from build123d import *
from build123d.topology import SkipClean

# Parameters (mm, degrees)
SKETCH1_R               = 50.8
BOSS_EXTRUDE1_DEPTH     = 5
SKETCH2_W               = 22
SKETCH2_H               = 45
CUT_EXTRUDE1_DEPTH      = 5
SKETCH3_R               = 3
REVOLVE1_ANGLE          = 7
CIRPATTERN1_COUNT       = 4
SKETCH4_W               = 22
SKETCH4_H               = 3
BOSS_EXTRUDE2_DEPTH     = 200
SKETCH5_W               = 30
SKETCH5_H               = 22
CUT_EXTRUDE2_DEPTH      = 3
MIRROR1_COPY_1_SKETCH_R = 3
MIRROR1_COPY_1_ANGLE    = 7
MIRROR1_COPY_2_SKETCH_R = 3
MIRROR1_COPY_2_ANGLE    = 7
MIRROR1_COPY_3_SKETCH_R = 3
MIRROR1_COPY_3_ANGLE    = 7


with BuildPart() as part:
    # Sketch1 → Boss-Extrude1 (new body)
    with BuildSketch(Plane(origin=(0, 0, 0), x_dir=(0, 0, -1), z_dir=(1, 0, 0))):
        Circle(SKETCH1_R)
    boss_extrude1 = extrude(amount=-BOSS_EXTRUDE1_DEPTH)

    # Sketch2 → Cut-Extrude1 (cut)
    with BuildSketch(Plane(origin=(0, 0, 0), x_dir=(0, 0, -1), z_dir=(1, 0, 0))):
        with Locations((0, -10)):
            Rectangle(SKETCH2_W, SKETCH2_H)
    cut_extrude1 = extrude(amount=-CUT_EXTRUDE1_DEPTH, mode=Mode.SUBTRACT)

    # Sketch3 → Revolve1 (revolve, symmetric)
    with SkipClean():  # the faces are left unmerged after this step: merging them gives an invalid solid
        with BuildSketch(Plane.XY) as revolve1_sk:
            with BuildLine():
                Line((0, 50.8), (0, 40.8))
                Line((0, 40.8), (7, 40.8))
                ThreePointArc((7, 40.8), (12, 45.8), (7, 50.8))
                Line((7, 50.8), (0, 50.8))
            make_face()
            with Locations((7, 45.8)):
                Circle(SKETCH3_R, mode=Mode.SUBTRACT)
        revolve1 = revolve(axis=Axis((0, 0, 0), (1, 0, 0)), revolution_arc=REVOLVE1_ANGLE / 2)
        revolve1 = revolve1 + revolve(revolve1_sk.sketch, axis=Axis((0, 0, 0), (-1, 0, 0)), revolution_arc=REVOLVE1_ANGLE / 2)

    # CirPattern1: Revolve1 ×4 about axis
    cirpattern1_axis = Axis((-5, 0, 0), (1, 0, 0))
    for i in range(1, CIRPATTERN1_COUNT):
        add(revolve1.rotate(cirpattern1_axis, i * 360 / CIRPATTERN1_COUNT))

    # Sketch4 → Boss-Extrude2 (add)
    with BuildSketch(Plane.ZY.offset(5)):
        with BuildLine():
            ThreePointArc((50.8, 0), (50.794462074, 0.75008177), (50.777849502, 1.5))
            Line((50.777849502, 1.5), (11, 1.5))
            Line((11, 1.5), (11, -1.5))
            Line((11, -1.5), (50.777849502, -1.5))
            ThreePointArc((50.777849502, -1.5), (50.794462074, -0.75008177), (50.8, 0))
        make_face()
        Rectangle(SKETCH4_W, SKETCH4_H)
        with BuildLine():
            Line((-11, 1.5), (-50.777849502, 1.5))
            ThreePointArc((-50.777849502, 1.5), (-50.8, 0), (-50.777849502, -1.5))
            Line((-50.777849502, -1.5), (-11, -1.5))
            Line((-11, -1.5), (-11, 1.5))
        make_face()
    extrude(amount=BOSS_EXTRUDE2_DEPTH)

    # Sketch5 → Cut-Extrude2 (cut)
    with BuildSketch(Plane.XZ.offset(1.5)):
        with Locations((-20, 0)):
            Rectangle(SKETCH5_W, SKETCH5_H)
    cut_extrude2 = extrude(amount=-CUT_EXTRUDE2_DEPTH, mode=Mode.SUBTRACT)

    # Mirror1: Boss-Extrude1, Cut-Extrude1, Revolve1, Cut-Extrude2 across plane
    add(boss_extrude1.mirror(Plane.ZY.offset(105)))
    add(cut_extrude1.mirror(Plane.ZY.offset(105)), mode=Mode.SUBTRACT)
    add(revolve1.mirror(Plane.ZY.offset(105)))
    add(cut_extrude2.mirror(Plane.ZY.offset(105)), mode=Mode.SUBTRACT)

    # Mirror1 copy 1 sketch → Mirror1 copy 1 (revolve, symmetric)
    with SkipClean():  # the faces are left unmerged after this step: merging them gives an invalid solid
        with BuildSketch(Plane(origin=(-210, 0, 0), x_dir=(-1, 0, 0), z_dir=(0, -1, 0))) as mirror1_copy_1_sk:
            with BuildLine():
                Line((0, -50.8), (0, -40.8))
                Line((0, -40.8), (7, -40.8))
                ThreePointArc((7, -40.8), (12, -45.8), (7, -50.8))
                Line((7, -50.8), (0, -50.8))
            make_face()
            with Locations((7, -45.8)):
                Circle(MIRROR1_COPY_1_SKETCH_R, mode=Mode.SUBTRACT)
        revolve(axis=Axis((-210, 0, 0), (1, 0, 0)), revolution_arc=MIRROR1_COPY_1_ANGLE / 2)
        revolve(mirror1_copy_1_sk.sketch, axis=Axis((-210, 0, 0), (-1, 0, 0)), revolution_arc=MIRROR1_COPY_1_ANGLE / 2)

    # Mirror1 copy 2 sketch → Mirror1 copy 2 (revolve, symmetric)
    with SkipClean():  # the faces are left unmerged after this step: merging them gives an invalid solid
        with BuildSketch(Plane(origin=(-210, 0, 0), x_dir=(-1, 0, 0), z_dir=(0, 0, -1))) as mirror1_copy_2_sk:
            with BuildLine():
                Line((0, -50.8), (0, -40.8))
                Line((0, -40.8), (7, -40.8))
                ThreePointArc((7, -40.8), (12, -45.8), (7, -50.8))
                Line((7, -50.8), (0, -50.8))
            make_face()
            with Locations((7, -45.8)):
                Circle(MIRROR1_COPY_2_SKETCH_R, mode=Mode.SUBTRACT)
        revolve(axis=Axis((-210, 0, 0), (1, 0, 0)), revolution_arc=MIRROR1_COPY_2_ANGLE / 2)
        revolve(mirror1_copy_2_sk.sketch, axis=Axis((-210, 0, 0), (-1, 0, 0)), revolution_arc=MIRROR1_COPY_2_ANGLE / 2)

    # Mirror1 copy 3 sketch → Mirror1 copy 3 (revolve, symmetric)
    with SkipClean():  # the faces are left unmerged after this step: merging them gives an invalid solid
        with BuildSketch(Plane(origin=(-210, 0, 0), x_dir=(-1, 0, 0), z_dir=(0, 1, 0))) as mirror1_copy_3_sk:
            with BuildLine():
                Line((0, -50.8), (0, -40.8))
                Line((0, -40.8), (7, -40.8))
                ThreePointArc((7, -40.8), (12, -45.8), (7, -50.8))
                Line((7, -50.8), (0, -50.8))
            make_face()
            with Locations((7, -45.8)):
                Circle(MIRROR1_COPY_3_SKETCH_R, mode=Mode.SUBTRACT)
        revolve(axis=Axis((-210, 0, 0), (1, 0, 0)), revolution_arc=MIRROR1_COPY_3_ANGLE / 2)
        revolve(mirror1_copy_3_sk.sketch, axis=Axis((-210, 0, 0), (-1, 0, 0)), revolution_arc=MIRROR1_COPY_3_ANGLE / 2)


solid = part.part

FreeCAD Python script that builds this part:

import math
import FreeCAD as App
import Part
import Sketcher

doc = App.newDocument("Part")
body = doc.addObject("PartDesign::Body", "Body")

sketch1 = doc.addObject("Sketcher::SketchObject", "Sketch")
body.addObject(sketch1)
sketch1.AttachmentSupport = (doc.YZ_Plane, [""])
sketch1.MapMode = "FlatFace"
sketch1.addGeometry(Part.Circle(App.Vector(0, 0, 0), App.Vector(0, 0, 1), 51), False)
sketch1.addConstraint([
    Sketcher.Constraint("Coincident", 0, 3, -1, 1),
    Sketcher.Constraint("Diameter", 0, 101.6),
])
pad1 = doc.addObject("PartDesign::Pad", "Pad")
body.addObject(pad1)
pad1.Profile = sketch1
pad1.Length = 5
pad1.Reversed = True

sketch2 = doc.addObject("Sketcher::SketchObject", "Sketch001")
body.addObject(sketch2)
sketch2.AttachmentSupport = (doc.YZ_Plane, [""])
sketch2.MapMode = "FlatFace"
sketch2.addGeometry([
    Part.LineSegment(App.Vector(12, 11, 0), App.Vector(-32, 11, 0)),
    Part.LineSegment(App.Vector(-32, 11, 0), App.Vector(-32, -11, 0)),
    Part.LineSegment(App.Vector(-32, -11, 0), App.Vector(12, -11, 0)),
    Part.LineSegment(App.Vector(12, -11, 0), App.Vector(12, 11, 0)),
], False)
sketch2.addConstraint([
    Sketcher.Constraint("Coincident", 0, 2, 1, 1),
    Sketcher.Constraint("Coincident", 1, 2, 2, 1),
    Sketcher.Constraint("Coincident", 2, 2, 3, 1),
    Sketcher.Constraint("Coincident", 3, 2, 0, 1),
    Sketcher.Constraint("Horizontal", 0),
    Sketcher.Constraint("Vertical", 1),
    Sketcher.Constraint("Horizontal", 2),
    Sketcher.Constraint("Vertical", 3),
    Sketcher.Constraint("DistanceX", 0, 2, 0, 1, 45.0),
    Sketcher.Constraint("DistanceY", 1, 2, 1, 1, 22.0),
    Sketcher.Constraint("DistanceY", -1, 1, 0, 2, 11.0),
    Sketcher.Constraint("DistanceX", 0, 2, -1, 1, 32.5),
])
pocket1 = doc.addObject("PartDesign::Pocket", "Pocket")
body.addObject(pocket1)
pocket1.Profile = sketch2
pocket1.Length = 5

sketch3 = doc.addObject("Sketcher::SketchObject", "Sketch002")
body.addObject(sketch3)
sketch3.AttachmentSupport = (doc.XY_Plane, [""])
sketch3.MapMode = "FlatFace"
sketch3.addGeometry([
    Part.LineSegment(App.Vector(0, 50.8, 0), App.Vector(0, 40.8, 0)),
    Part.LineSegment(App.Vector(0, 40.8, 0), App.Vector(7, 40.8, 0)),
    Part.ArcOfCircle(Part.Circle(App.Vector(7, 45.8, 0), App.Vector(0, 0, 1), 5), math.radians(-90), math.radians(90)),
    Part.LineSegment(App.Vector(7, 50.8, 0), App.Vector(0, 50.8, 0)),
    Part.Circle(App.Vector(7, 45.8, 0), App.Vector(0, 0, 1), 3),
], False)
sketch3.addConstraint([
    Sketcher.Constraint("Coincident", 0, 2, 1, 1),
    Sketcher.Constraint("Tangent", 1, 2, 2, 1),
    Sketcher.Constraint("Tangent", 2, 2, 3, 1),
    Sketcher.Constraint("Coincident", 3, 2, 0, 1),
    Sketcher.Constraint("Vertical", 0),
    Sketcher.Constraint("Horizontal", 1),
    Sketcher.Constraint("Horizontal", 3),
    Sketcher.Constraint("Coincident", 4, 3, 2, 3),
    Sketcher.Constraint("PointOnObject", 0, 2, -2),
    Sketcher.Constraint("Diameter", 4, 6.0),
    Sketcher.Constraint("Radius", 2, 5.0),
    Sketcher.Constraint("DistanceX", 1, 1, 1, 2, 7.0),
    Sketcher.Constraint("DistanceY", -1, 1, 2, 3, 45.8),
])
revolution = doc.addObject("PartDesign::Revolution", "Revolution")
body.addObject(revolution)
revolution.Profile = sketch3
revolution.ReferenceAxis = (sketch3, ["H_Axis"])
revolution.Angle = 3.5

sketch4 = doc.addObject("Sketcher::SketchObject", "Sketch003")
body.addObject(sketch4)
sketch4.AttachmentSupport = (doc.XY_Plane, [""])
sketch4.MapMode = "FlatFace"
sketch4.addGeometry([
    Part.LineSegment(App.Vector(0, 50.8, 0), App.Vector(0, 40.8, 0)),
    Part.LineSegment(App.Vector(0, 40.8, 0), App.Vector(7, 40.8, 0)),
    Part.ArcOfCircle(Part.Circle(App.Vector(7, 45.8, 0), App.Vector(0, 0, 1), 5), math.radians(-90), math.radians(90)),
    Part.LineSegment(App.Vector(7, 50.8, 0), App.Vector(0, 50.8, 0)),
    Part.Circle(App.Vector(7, 45.8, 0), App.Vector(0, 0, 1), 3),
], False)
sketch4.addConstraint([
    Sketcher.Constraint("Coincident", 0, 2, 1, 1),
    Sketcher.Constraint("Tangent", 1, 2, 2, 1),
    Sketcher.Constraint("Tangent", 2, 2, 3, 1),
    Sketcher.Constraint("Coincident", 3, 2, 0, 1),
    Sketcher.Constraint("Vertical", 0),
    Sketcher.Constraint("Horizontal", 1),
    Sketcher.Constraint("Horizontal", 3),
    Sketcher.Constraint("Coincident", 4, 3, 2, 3),
    Sketcher.Constraint("PointOnObject", 0, 2, -2),
    Sketcher.Constraint("Diameter", 4, 6.0),
    Sketcher.Constraint("Radius", 2, 5.0),
    Sketcher.Constraint("DistanceX", 1, 1, 1, 2, 7.0),
    Sketcher.Constraint("DistanceY", -1, 1, 2, 3, 45.8),
])
revolution2 = doc.addObject("PartDesign::Revolution", "Revolution001")
body.addObject(revolution2)
revolution2.Profile = sketch4
revolution2.ReferenceAxis = (sketch4, ["H_Axis"])
revolution2.Angle = 3.5
revolution2.Reversed = True
doc.recompute()

polarpattern = doc.addObject("PartDesign::PolarPattern", "PolarPattern")
body.addObject(polarpattern)
polarpattern.Originals = [revolution, revolution2]
polarpattern.Axis = (doc.X_Axis, [""])
polarpattern.Angle = 360
polarpattern.Occurrences = 4
body.Tip = polarpattern

sketch5 = doc.addObject("Sketcher::SketchObject", "Sketch004")
body.addObject(sketch5)
sketch5.AttachmentSupport = (doc.YZ_Plane, [""])
sketch5.MapMode = "FlatFace"
sketch5.AttachmentOffset = App.Placement(App.Vector(0, 0, -5), App.Rotation())
sketch5.addGeometry([
    Part.ArcOfCircle(Part.Circle(App.Vector(0, 0, 0), App.Vector(0, 0, 1), 50.8), math.radians(88.31), math.radians(90)),
    Part.LineSegment(App.Vector(1.5, 50.8, 0), App.Vector(1.5, -50.8, 0)),
    Part.ArcOfCircle(Part.Circle(App.Vector(0, 0, 0), App.Vector(0, 0, 1), 50.8), math.radians(-91.69), math.radians(-88.31)),
    Part.LineSegment(App.Vector(-1.5, -50.8, 0), App.Vector(-1.5, 50.8, 0)),
    Part.ArcOfCircle(Part.Circle(App.Vector(0, 0, 0), App.Vector(0, 0, 1), 50.8), math.radians(90), math.radians(91.69)),
], False)
sketch5.addConstraint([
    Sketcher.Constraint("Coincident", 0, 1, 1, 1),
    Sketcher.Constraint("Coincident", 1, 2, 2, 2),
    Sketcher.Constraint("Coincident", 2, 1, 3, 1),
    Sketcher.Constraint("Coincident", 3, 2, 4, 2),
    Sketcher.Constraint("Tangent", 4, 1, 0, 2),
    Sketcher.Constraint("Vertical", 1),
    Sketcher.Constraint("Vertical", 3),
    Sketcher.Constraint("Coincident", 0, 3, -1, 1),
    Sketcher.Constraint("Coincident", 2, 3, -1, 1),
    Sketcher.Constraint("Equal", 0, 4),
    Sketcher.Constraint("Symmetric", 0, 1, 2, 1, -1, 1),
    Sketcher.Constraint("PointOnObject", 4, 1, -2),
    Sketcher.Constraint("Radius", 2, 50.800001),
    Sketcher.Constraint("DistanceX", 2, 1, 1, 2, 3.0),
])
pad2 = doc.addObject("PartDesign::Pad", "Pad001")
body.addObject(pad2)
pad2.Profile = sketch5
pad2.Length = 200
pad2.Reversed = True

sketch6 = doc.addObject("Sketcher::SketchObject", "Sketch005")
body.addObject(sketch6)
sketch6.AttachmentSupport = (doc.XZ_Plane, [""])
sketch6.MapMode = "FlatFace"
sketch6.AttachmentOffset = App.Placement(App.Vector(0, 0, 1.5), App.Rotation())
sketch6.addGeometry([
    Part.LineSegment(App.Vector(-35, 11, 0), App.Vector(-35, -11, 0)),
    Part.LineSegment(App.Vector(-35, -11, 0), App.Vector(-5, -11, 0)),
    Part.LineSegment(App.Vector(-5, -11, 0), App.Vector(-5, 11, 0)),
    Part.LineSegment(App.Vector(-5, 11, 0), App.Vector(-35, 11, 0)),
], False)
sketch6.addConstraint([
    Sketcher.Constraint("Coincident", 0, 2, 1, 1),
    Sketcher.Constraint("Coincident", 1, 2, 2, 1),
    Sketcher.Constraint("Coincident", 2, 2, 3, 1),
    Sketcher.Constraint("Coincident", 3, 2, 0, 1),
    Sketcher.Constraint("Vertical", 0),
    Sketcher.Constraint("Horizontal", 1),
    Sketcher.Constraint("Vertical", 2),
    Sketcher.Constraint("Horizontal", 3),
    Sketcher.Constraint("DistanceX", 1, 1, 1, 2, 30.0),
    Sketcher.Constraint("DistanceY", 0, 2, 0, 1, 22.0),
    Sketcher.Constraint("DistanceX", 0, 2, -1, 1, 35.0),
    Sketcher.Constraint("DistanceY", 0, 2, -1, 1, 11.0),
])
pocket2 = doc.addObject("PartDesign::Pocket", "Pocket001")
body.addObject(pocket2)
pocket2.Profile = sketch6
pocket2.Length = 3
doc.recompute()

datumplane = doc.addObject("PartDesign::Plane", "DatumPlane")
body.addObject(datumplane)
datumplane.AttachmentSupport = (doc.YZ_Plane, [""])
datumplane.MapMode = "FlatFace"
datumplane.AttachmentOffset = App.Placement(App.Vector(0, 0, -105), App.Rotation())
mirrored = doc.addObject("PartDesign::Mirrored", "Mirrored")
body.addObject(mirrored)
mirrored.Originals = [pad1, pocket1, revolution, revolution2, pocket2]
mirrored.MirrorPlane = (datumplane, [""])
body.Tip = mirrored

sketch7 = doc.addObject("Sketcher::SketchObject", "Sketch006")
body.addObject(sketch7)
sketch7.AttachmentSupport = (doc.XZ_Plane, [""])
sketch7.MapMode = "FlatFace"
sketch7.addGeometry([
    Part.LineSegment(App.Vector(-210, 40.8, 0), App.Vector(-210, 50.8, 0)),
    Part.LineSegment(App.Vector(-210, 50.8, 0), App.Vector(-217, 50.8, 0)),
    Part.ArcOfCircle(Part.Circle(App.Vector(-217, 45.8, 0), App.Vector(0, 0, 1), 5), math.radians(90), math.radians(270)),
    Part.LineSegment(App.Vector(-217, 40.8, 0), App.Vector(-210, 40.8, 0)),
    Part.Circle(App.Vector(-217, 45.8, 0), App.Vector(0, 0, 1), 3),
], False)
sketch7.addConstraint([
    Sketcher.Constraint("Coincident", 0, 2, 1, 1),
    Sketcher.Constraint("Tangent", 1, 2, 2, 1),
    Sketcher.Constraint("Tangent", 2, 2, 3, 1),
    Sketcher.Constraint("Coincident", 3, 2, 0, 1),
    Sketcher.Constraint("Vertical", 0),
    Sketcher.Constraint("Horizontal", 1),
    Sketcher.Constraint("Horizontal", 3),
    Sketcher.Constraint("Coincident", 4, 3, 2, 3),
    Sketcher.Constraint("Diameter", 4, 6.0),
    Sketcher.Constraint("Radius", 2, 5.0),
    Sketcher.Constraint("DistanceX", 1, 2, 1, 1, 7.0),
    Sketcher.Constraint("DistanceX", 2, 3, -1, 1, 217.0),
    Sketcher.Constraint("DistanceY", -1, 1, 2, 3, 45.8),
])
revolution3 = doc.addObject("PartDesign::Revolution", "Revolution002")
body.addObject(revolution3)
revolution3.Profile = sketch7
revolution3.ReferenceAxis = (sketch7, ["H_Axis"])
revolution3.Angle = 3.5

sketch8 = doc.addObject("Sketcher::SketchObject", "Sketch007")
body.addObject(sketch8)
sketch8.AttachmentSupport = (doc.XZ_Plane, [""])
sketch8.MapMode = "FlatFace"
sketch8.addGeometry([
    Part.LineSegment(App.Vector(-210, 40.8, 0), App.Vector(-210, 50.8, 0)),
    Part.LineSegment(App.Vector(-210, 50.8, 0), App.Vector(-217, 50.8, 0)),
    Part.ArcOfCircle(Part.Circle(App.Vector(-217, 45.8, 0), App.Vector(0, 0, 1), 5), math.radians(90), math.radians(270)),
    Part.LineSegment(App.Vector(-217, 40.8, 0), App.Vector(-210, 40.8, 0)),
    Part.Circle(App.Vector(-217, 45.8, 0), App.Vector(0, 0, 1), 3),
], False)
sketch8.addConstraint([
    Sketcher.Constraint("Coincident", 0, 2, 1, 1),
    Sketcher.Constraint("Tangent", 1, 2, 2, 1),
    Sketcher.Constraint("Tangent", 2, 2, 3, 1),
    Sketcher.Constraint("Coincident", 3, 2, 0, 1),
    Sketcher.Constraint("Vertical", 0),
    Sketcher.Constraint("Horizontal", 1),
    Sketcher.Constraint("Horizontal", 3),
    Sketcher.Constraint("Coincident", 4, 3, 2, 3),
    Sketcher.Constraint("Diameter", 4, 6.0),
    Sketcher.Constraint("Radius", 2, 5.0),
    Sketcher.Constraint("DistanceX", 1, 2, 1, 1, 7.0),
    Sketcher.Constraint("DistanceX", 2, 3, -1, 1, 217.0),
    Sketcher.Constraint("DistanceY", -1, 1, 2, 3, 45.8),
])
revolution4 = doc.addObject("PartDesign::Revolution", "Revolution003")
body.addObject(revolution4)
revolution4.Profile = sketch8
revolution4.ReferenceAxis = (sketch8, ["H_Axis"])
revolution4.Angle = 3.5
revolution4.Reversed = True

sketch9 = doc.addObject("Sketcher::SketchObject", "Sketch008")
body.addObject(sketch9)
sketch9.AttachmentSupport = (doc.XY_Plane, [""])
sketch9.MapMode = "FlatFace"
sketch9.addGeometry([
    Part.LineSegment(App.Vector(-210, -40.8, 0), App.Vector(-210, -50.8, 0)),
    Part.LineSegment(App.Vector(-210, -50.8, 0), App.Vector(-217, -50.8, 0)),
    Part.ArcOfCircle(Part.Circle(App.Vector(-217, -45.8, 0), App.Vector(0, 0, 1), 5), math.radians(90), math.radians(270)),
    Part.LineSegment(App.Vector(-217, -40.8, 0), App.Vector(-210, -40.8, 0)),
    Part.Circle(App.Vector(-217, -45.8, 0), App.Vector(0, 0, 1), 3),
], False)
sketch9.addConstraint([
    Sketcher.Constraint("Coincident", 0, 2, 1, 1),
    Sketcher.Constraint("Tangent", 1, 2, 2, 2),
    Sketcher.Constraint("Tangent", 2, 1, 3, 1),
    Sketcher.Constraint("Coincident", 3, 2, 0, 1),
    Sketcher.Constraint("Vertical", 0),
    Sketcher.Constraint("Horizontal", 1),
    Sketcher.Constraint("Horizontal", 3),
    Sketcher.Constraint("Coincident", 4, 3, 2, 3),
    Sketcher.Constraint("Diameter", 4, 6.0),
    Sketcher.Constraint("Radius", 2, 5.0),
    Sketcher.Constraint("DistanceX", 1, 2, 1, 1, 7.0),
    Sketcher.Constraint("DistanceX", 2, 3, -1, 1, 217.0),
    Sketcher.Constraint("DistanceY", 2, 3, -1, 1, 45.8),
])
revolution5 = doc.addObject("PartDesign::Revolution", "Revolution004")
body.addObject(revolution5)
revolution5.Profile = sketch9
revolution5.ReferenceAxis = (sketch9, ["H_Axis"])
revolution5.Angle = 3.5

sketch10 = doc.addObject("Sketcher::SketchObject", "Sketch009")
body.addObject(sketch10)
sketch10.AttachmentSupport = (doc.XY_Plane, [""])
sketch10.MapMode = "FlatFace"
sketch10.addGeometry([
    Part.LineSegment(App.Vector(-210, -40.8, 0), App.Vector(-210, -50.8, 0)),
    Part.LineSegment(App.Vector(-210, -50.8, 0), App.Vector(-217, -50.8, 0)),
    Part.ArcOfCircle(Part.Circle(App.Vector(-217, -45.8, 0), App.Vector(0, 0, 1), 5), math.radians(90), math.radians(270)),
    Part.LineSegment(App.Vector(-217, -40.8, 0), App.Vector(-210, -40.8, 0)),
    Part.Circle(App.Vector(-217, -45.8, 0), App.Vector(0, 0, 1), 3),
], False)
sketch10.addConstraint([
    Sketcher.Constraint("Coincident", 0, 2, 1, 1),
    Sketcher.Constraint("Tangent", 1, 2, 2, 2),
    Sketcher.Constraint("Tangent", 2, 1, 3, 1),
    Sketcher.Constraint("Coincident", 3, 2, 0, 1),
    Sketcher.Constraint("Vertical", 0),
    Sketcher.Constraint("Horizontal", 1),
    Sketcher.Constraint("Horizontal", 3),
    Sketcher.Constraint("Coincident", 4, 3, 2, 3),
    Sketcher.Constraint("Diameter", 4, 6.0),
    Sketcher.Constraint("Radius", 2, 5.0),
    Sketcher.Constraint("DistanceX", 1, 2, 1, 1, 7.0),
    Sketcher.Constraint("DistanceX", 2, 3, -1, 1, 217.0),
    Sketcher.Constraint("DistanceY", 2, 3, -1, 1, 45.8),
])
revolution6 = doc.addObject("PartDesign::Revolution", "Revolution005")
body.addObject(revolution6)
revolution6.Profile = sketch10
revolution6.ReferenceAxis = (sketch10, ["H_Axis"])
revolution6.Angle = 3.5
revolution6.Reversed = True

sketch11 = doc.addObject("Sketcher::SketchObject", "Sketch010")
body.addObject(sketch11)
sketch11.AttachmentSupport = (doc.XZ_Plane, [""])
sketch11.MapMode = "FlatFace"
sketch11.addGeometry([
    Part.LineSegment(App.Vector(-210, -40.8, 0), App.Vector(-210, -50.8, 0)),
    Part.LineSegment(App.Vector(-210, -50.8, 0), App.Vector(-217, -50.8, 0)),
    Part.ArcOfCircle(Part.Circle(App.Vector(-217, -45.8, 0), App.Vector(0, 0, 1), 5), math.radians(90), math.radians(270)),
    Part.LineSegment(App.Vector(-217, -40.8, 0), App.Vector(-210, -40.8, 0)),
    Part.Circle(App.Vector(-217, -45.8, 0), App.Vector(0, 0, 1), 3),
], False)
sketch11.addConstraint([
    Sketcher.Constraint("Coincident", 0, 2, 1, 1),
    Sketcher.Constraint("Tangent", 1, 2, 2, 2),
    Sketcher.Constraint("Tangent", 2, 1, 3, 1),
    Sketcher.Constraint("Coincident", 3, 2, 0, 1),
    Sketcher.Constraint("Vertical", 0),
    Sketcher.Constraint("Horizontal", 1),
    Sketcher.Constraint("Horizontal", 3),
    Sketcher.Constraint("Coincident", 4, 3, 2, 3),
    Sketcher.Constraint("Diameter", 4, 6.0),
    Sketcher.Constraint("Radius", 2, 5.0),
    Sketcher.Constraint("DistanceX", 1, 2, 1, 1, 7.0),
    Sketcher.Constraint("DistanceX", 2, 3, -1, 1, 217.0),
    Sketcher.Constraint("DistanceY", 2, 3, -1, 1, 45.8),
])
revolution7 = doc.addObject("PartDesign::Revolution", "Revolution006")
body.addObject(revolution7)
revolution7.Profile = sketch11
revolution7.ReferenceAxis = (sketch11, ["H_Axis"])
revolution7.Angle = 3.5

sketch12 = doc.addObject("Sketcher::SketchObject", "Sketch011")
body.addObject(sketch12)
sketch12.AttachmentSupport = (doc.XZ_Plane, [""])
sketch12.MapMode = "FlatFace"
sketch12.addGeometry([
    Part.LineSegment(App.Vector(-210, -40.8, 0), App.Vector(-210, -50.8, 0)),
    Part.LineSegment(App.Vector(-210, -50.8, 0), App.Vector(-217, -50.8, 0)),
    Part.ArcOfCircle(Part.Circle(App.Vector(-217, -45.8, 0), App.Vector(0, 0, 1), 5), math.radians(90), math.radians(270)),
    Part.LineSegment(App.Vector(-217, -40.8, 0), App.Vector(-210, -40.8, 0)),
    Part.Circle(App.Vector(-217, -45.8, 0), App.Vector(0, 0, 1), 3),
], False)
sketch12.addConstraint([
    Sketcher.Constraint("Coincident", 0, 2, 1, 1),
    Sketcher.Constraint("Tangent", 1, 2, 2, 2),
    Sketcher.Constraint("Tangent", 2, 1, 3, 1),
    Sketcher.Constraint("Coincident", 3, 2, 0, 1),
    Sketcher.Constraint("Vertical", 0),
    Sketcher.Constraint("Horizontal", 1),
    Sketcher.Constraint("Horizontal", 3),
    Sketcher.Constraint("Coincident", 4, 3, 2, 3),
    Sketcher.Constraint("Diameter", 4, 6.0),
    Sketcher.Constraint("Radius", 2, 5.0),
    Sketcher.Constraint("DistanceX", 1, 2, 1, 1, 7.0),
    Sketcher.Constraint("DistanceX", 2, 3, -1, 1, 217.0),
    Sketcher.Constraint("DistanceY", 2, 3, -1, 1, 45.8),
])
revolution8 = doc.addObject("PartDesign::Revolution", "Revolution007")
body.addObject(revolution8)
revolution8.Profile = sketch12
revolution8.ReferenceAxis = (sketch12, ["H_Axis"])
revolution8.Angle = 3.5
revolution8.Reversed = True

doc.recompute()
